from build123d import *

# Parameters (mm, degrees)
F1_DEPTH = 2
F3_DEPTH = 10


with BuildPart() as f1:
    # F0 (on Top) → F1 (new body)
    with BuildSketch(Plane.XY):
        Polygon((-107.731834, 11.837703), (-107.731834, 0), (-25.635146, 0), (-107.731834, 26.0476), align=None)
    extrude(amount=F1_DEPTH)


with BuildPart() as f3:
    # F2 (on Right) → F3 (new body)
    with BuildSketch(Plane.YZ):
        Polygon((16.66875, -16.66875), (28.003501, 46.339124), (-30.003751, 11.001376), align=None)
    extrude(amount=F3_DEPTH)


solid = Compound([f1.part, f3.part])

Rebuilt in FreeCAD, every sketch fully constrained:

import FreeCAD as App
import Part
import Sketcher
from FreeCAD import Vector
Q = App.Units.Quantity


def add_polygon(sketch, points):
    """Adds a closed chain of lines whose ends are joined by coincident constraints."""
    first, n = sketch.GeometryCount, len(points)
    for a, b in zip(points, points[1:] + points[:1]):
        sketch.addGeometry(Part.LineSegment(App.Vector(*a, 0), App.Vector(*b, 0)), False)
    for i in range(n):
        sketch.addConstraint(Sketcher.Constraint("Coincident", first + i, 2, first + (i + 1) % n, 1))

doc = App.newDocument("Part")
body = doc.addObject("PartDesign::Body", "Body")

sketch1 = body.newObject("Sketcher::SketchObject", "Sketch")
sketch1.AttachmentSupport = (doc.getObject("XY_Plane"), [""])
sketch1.MapMode = "FlatFace"
add_polygon(sketch1, [(-108, 0), (-26, 0), (-108, 26)])
sketch1.addConstraint([
    Sketcher.Constraint("Horizontal", 0),
    Sketcher.Constraint("Vertical", 2),
    Sketcher.Constraint("PointOnObject", 0, 2, -1),
    Sketcher.Constraint("DistanceY", 2, 2, 2, 1, Q("26.0476 mm")),
    Sketcher.Constraint("DistanceX", 0, 1, 0, 2, Q("82.096688 mm")),
    Sketcher.Constraint("DistanceX", 0, 2, -1, 1, Q("25.635146 mm")),
])
pad1 = body.newObject("PartDesign::Pad", "Pad")
pad1.Profile = sketch1
pad1.Length = 2
body2 = doc.addObject("PartDesign::Body", "Body001")

sketch2 = body2.newObject("Sketcher::SketchObject", "Sketch001")
sketch2.AttachmentSupport = (doc.getObject("YZ_Plane001"), [""])
sketch2.MapMode = "FlatFace"
add_polygon(sketch2, [(17, -17), (28, 46), (-30, 11)])
sketch2.addConstraint([
    Sketcher.Constraint("DistanceX", -1, 1, 0, 2, Q("28.003501 mm")),
    Sketcher.Constraint("DistanceX", 1, 2, 2, 2, Q("46.672501 mm")),
    Sketcher.Constraint("Distance", 1, Q("67.92347 mm")),
    Sketcher.Constraint("DistanceX", 1, 2, -1, 1, Q("30.003751 mm")),
    Sketcher.Constraint("DistanceY", 2, 2, -1, 1, Q("16.66875 mm")),
    Sketcher.Constraint("Distance", 0, Q("64.019284 mm")),
])
pad2 = body2.newObject("PartDesign::Pad", "Pad001")
pad2.Profile = sketch2
pad2.Length = 10

doc.recompute()
